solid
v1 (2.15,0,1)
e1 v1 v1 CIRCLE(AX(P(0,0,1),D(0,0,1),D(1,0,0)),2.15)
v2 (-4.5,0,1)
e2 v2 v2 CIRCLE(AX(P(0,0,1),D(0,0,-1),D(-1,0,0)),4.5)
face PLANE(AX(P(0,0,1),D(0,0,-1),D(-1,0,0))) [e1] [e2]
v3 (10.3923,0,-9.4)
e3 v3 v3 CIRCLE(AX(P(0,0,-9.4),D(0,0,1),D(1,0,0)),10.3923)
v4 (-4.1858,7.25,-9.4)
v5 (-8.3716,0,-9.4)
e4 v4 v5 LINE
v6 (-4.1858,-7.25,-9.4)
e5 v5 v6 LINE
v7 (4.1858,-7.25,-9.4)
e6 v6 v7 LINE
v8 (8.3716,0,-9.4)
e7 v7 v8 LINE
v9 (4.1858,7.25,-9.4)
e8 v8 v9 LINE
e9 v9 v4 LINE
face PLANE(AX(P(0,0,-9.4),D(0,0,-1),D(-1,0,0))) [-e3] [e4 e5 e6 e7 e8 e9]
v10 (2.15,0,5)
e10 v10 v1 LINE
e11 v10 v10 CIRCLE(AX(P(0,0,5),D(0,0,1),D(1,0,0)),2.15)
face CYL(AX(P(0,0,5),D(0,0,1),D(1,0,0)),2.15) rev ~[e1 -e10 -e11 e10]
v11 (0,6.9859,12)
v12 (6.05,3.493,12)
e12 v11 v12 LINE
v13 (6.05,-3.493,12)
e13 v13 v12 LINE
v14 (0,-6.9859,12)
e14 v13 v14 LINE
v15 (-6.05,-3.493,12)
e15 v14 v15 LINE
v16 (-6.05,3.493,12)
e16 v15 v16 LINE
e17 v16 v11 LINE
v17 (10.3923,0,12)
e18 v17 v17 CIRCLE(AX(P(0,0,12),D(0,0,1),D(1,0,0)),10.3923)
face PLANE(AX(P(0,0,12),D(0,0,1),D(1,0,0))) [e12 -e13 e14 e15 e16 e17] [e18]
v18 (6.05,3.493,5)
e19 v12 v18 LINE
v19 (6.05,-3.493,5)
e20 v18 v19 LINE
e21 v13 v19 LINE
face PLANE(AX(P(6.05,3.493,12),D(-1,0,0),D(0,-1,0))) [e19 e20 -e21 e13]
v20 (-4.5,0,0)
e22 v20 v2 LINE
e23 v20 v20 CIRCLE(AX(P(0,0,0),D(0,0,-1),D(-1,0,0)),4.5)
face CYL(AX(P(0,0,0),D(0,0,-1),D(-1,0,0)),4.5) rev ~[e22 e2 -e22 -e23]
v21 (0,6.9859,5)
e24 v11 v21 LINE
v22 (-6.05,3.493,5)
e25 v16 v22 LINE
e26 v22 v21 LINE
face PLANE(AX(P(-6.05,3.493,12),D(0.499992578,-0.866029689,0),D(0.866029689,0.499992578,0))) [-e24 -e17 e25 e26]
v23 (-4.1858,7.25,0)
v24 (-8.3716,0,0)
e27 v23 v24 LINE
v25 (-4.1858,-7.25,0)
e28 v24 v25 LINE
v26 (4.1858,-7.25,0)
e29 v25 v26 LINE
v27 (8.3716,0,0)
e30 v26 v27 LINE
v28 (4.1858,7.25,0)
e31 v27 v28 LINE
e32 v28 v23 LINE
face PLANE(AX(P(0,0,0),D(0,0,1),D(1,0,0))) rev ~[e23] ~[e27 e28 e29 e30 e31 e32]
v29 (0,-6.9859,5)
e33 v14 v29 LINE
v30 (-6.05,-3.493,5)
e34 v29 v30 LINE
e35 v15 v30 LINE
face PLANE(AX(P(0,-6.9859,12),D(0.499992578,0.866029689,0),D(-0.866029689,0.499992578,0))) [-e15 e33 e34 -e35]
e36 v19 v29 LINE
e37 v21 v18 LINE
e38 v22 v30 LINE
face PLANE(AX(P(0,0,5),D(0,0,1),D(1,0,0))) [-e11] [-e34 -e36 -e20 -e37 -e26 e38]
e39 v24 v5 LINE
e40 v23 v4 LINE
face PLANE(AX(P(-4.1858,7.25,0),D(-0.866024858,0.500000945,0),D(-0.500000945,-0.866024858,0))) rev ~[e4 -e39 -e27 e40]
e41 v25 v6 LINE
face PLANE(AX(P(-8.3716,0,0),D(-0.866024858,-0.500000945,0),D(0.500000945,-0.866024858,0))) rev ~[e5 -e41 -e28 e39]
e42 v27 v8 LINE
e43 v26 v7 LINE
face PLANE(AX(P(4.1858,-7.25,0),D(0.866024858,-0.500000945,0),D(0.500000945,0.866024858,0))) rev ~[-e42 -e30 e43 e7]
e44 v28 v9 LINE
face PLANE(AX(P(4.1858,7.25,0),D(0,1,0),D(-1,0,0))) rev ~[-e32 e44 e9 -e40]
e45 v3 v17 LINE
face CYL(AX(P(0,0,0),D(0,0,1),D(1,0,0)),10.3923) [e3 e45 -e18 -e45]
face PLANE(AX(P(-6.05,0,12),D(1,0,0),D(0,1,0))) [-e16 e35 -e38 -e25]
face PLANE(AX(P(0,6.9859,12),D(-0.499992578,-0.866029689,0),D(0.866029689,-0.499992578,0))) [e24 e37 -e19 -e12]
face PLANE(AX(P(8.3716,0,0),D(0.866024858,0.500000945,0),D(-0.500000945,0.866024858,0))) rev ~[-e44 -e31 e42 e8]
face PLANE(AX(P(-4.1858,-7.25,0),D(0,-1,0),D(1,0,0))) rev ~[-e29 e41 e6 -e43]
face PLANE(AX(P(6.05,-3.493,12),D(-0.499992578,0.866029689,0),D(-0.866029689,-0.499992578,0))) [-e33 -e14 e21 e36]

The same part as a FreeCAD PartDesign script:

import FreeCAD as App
import Part
import Sketcher
from FreeCAD import Vector
Q = App.Units.Quantity


def add_polygon(sketch, points):
    """Adds a closed chain of lines whose ends are joined by coincident constraints."""
    first, n = sketch.GeometryCount, len(points)
    for a, b in zip(points, points[1:] + points[:1]):
        sketch.addGeometry(Part.LineSegment(App.Vector(*a, 0), App.Vector(*b, 0)), False)
    for i in range(n):
        sketch.addConstraint(Sketcher.Constraint("Coincident", first + i, 2, first + (i + 1) % n, 1))

doc = App.newDocument("Part")
body = doc.addObject("PartDesign::Body", "Body")

sketch1 = body.newObject("Sketcher::SketchObject", "Sketch")
sketch1.AttachmentSupport = (doc.getObject("XY_Plane"), [""])
sketch1.MapMode = "FlatFace"
sketch1.addGeometry(Part.Circle(Vector(0, 0, 0), Vector(0, 0, 1), 10), False)
add_polygon(sketch1, [(-4, -7), (-8, 0), (-4, 7), (4, 7), (8, 0), (4, -7)])
sketch1.addConstraint([
    Sketcher.Constraint("Horizontal", 3),
    Sketcher.Constraint("Horizontal", 6),
    Sketcher.Constraint("Coincident", 0, 3, -1, 1),
    Sketcher.Constraint("Symmetric", 1, 2, 4, 2, -1, 1),
    Sketcher.Constraint("Symmetric", 2, 2, 5, 2, -1, 1),
    Sketcher.Constraint("PointOnObject", 1, 2, -1),
    Sketcher.Constraint("Parallel", 1, 4),
    Sketcher.Constraint("Vertical", 3, 2, 5, 2),
    Sketcher.Constraint("Angle", 1, Q("120 deg")),
    Sketcher.Constraint("Diameter", 0, Q("20.7846 mm")),
    Sketcher.Constraint("DistanceY", 5, 2, 3, 2, Q("14.5 mm")),
    Sketcher.Constraint("DistanceX", 3, 1, 3, 2, Q("8.3716 mm")),
])
pad1 = body.newObject("PartDesign::Pad", "Pad")
pad1.Profile = sketch1
pad1.Length = 9.7
pad1.Reversed = True

sketch2 = body.newObject("Sketcher::SketchObject", "Sketch001")
sketch2.AttachmentSupport = (doc.getObject("XY_Plane"), [""])
sketch2.MapMode = "FlatFace"
sketch2.addGeometry(Part.Circle(Vector(0, 0, 0), Vector(0, 0, 1), 10), False)
sketch2.addConstraint([
    Sketcher.Constraint("Coincident", 0, 3, -1, 1),
    Sketcher.Constraint("Diameter", 0, Q("20.7846 mm")),
])
pad2 = body.newObject("PartDesign::Pad", "Pad001")
pad2.Profile = sketch2
pad2.Length = 12

sketch3 = body.newObject("Sketcher::SketchObject", "Sketch002")
sketch3.AttachmentSupport = (doc.getObject("XY_Plane"), [""])
sketch3.MapMode = "FlatFace"
sketch3.AttachmentOffset = App.Placement(Vector(0, 0, -9.7), App.Rotation())
sketch3.addGeometry(Part.Circle(Vector(0, 0, 0), Vector(0, 0, 1), 10), False)
sketch3.addConstraint([
    Sketcher.Constraint("Coincident", 0, 3, -1, 1),
    Sketcher.Constraint("Diameter", 0, Q("20.7846 mm")),
])
pocket1 = body.newObject("PartDesign::Pocket", "Pocket")
pocket1.Profile = sketch3
pocket1.Length = 0.3
pocket1.Reversed = True

sketch4 = body.newObject("Sketcher::SketchObject", "Sketch003")
sketch4.AttachmentSupport = (doc.getObject("XY_Plane"), [""])
sketch4.MapMode = "FlatFace"
sketch4.AttachmentOffset = App.Placement(Vector(0, 0, 12), App.Rotation())
add_polygon(sketch4, [(0, 7), (-6, 3), (-6, -3), (0, -7), (6, -3), (6, 3)])
sketch4.addConstraint([
    Sketcher.Constraint("Vertical", 1),
    Sketcher.Constraint("Vertical", 4),
    Sketcher.Constraint("Symmetric", 0, 2, 3, 2, -1, 1),
    Sketcher.Constraint("Symmetric", 2, 2, 5, 2, -1, 1),
    Sketcher.Constraint("PointOnObject", 2, 2, -2),
    Sketcher.Constraint("Parallel", 2, 5),
    Sketcher.Constraint("Horizontal", 1, 2, 3, 2),
    Sketcher.Constraint("DistanceX", 1, 2, 3, 2, Q("12.1 mm")),
    Sketcher.Constraint("Angle", 0, Q("-150.0005 deg")),
    Sketcher.Constraint("DistanceY", 1, 2, 1, 1, Q("6.986 mm")),
])
pocket2 = body.newObject("PartDesign::Pocket", "Pocket001")
pocket2.Profile = sketch4
pocket2.Length = 7

sketch5 = body.newObject("Sketcher::SketchObject", "Sketch004")
sketch5.AttachmentSupport = (doc.getObject("XY_Plane"), [""])
sketch5.MapMode = "FlatFace"
sketch5.AttachmentOffset = App.Placement(Vector(0, 0, 5), App.Rotation())
sketch5.addGeometry(Part.Circle(Vector(0, 0, 0), Vector(0, 0, 1), 2.1), False)
sketch5.addConstraint([
    Sketcher.Constraint("Coincident", 0, 3, -1, 1),
    Sketcher.Constraint("Diameter", 0, Q("4.3 mm")),
])
pocket3 = body.newObject("PartDesign::Pocket", "Pocket002")
pocket3.Profile = sketch5
pocket3.Type = "ThroughAll"

sketch6 = body.newObject("Sketcher::SketchObject", "Sketch005")
sketch6.AttachmentSupport = (doc.getObject("XY_Plane"), [""])
sketch6.MapMode = "FlatFace"
sketch6.addGeometry(Part.Circle(Vector(0, 0, 0), Vector(0, 0, 1), 4.5), False)
sketch6.addConstraint([
    Sketcher.Constraint("Coincident", 0, 3, -1, 1),
    Sketcher.Constraint("Diameter", 0, Q("9 mm")),
])
pocket4 = body.newObject("PartDesign::Pocket", "Pocket003")
pocket4.Profile = sketch6
pocket4.Length = 1
pocket4.Reversed = True

doc.recompute()
